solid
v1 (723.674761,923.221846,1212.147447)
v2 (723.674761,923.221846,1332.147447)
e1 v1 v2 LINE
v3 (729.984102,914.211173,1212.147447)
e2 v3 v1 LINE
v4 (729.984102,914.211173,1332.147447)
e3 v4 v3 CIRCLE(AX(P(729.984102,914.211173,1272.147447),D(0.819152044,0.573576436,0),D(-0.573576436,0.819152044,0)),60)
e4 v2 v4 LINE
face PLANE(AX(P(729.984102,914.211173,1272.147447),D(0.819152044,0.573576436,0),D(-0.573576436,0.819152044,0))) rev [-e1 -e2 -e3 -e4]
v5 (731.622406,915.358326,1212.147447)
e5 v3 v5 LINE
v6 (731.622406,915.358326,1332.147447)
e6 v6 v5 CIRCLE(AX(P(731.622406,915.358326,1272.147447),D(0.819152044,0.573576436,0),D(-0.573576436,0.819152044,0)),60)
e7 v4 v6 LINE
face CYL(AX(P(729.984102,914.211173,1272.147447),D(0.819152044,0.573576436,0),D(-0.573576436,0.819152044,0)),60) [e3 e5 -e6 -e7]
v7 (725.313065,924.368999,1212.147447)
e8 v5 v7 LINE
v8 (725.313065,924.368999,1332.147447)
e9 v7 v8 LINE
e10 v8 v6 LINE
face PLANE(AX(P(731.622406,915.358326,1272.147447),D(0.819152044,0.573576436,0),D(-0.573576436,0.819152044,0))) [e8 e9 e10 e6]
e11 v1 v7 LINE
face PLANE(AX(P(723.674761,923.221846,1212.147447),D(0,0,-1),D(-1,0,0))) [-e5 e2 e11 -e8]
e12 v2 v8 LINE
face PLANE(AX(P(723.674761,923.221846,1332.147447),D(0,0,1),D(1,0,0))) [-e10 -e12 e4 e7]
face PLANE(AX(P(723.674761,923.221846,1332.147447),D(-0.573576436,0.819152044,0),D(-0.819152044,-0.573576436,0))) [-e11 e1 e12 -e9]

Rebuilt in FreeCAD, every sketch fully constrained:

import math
import FreeCAD as App
import Part
import Sketcher

V = App.Vector

doc = App.newDocument("Part")
body = doc.addObject("PartDesign::Body", "Body")

# Sketch on an angled plane
sketch1 = body.newObject("Sketcher::SketchObject", "Sketch")
sketch1.Placement = App.Placement(V(921.003735, 644.893758, 0), App.Rotation(V(0, 0, -1), V(-0.573576436, 0.819152044, 0), V(0.819152044, 0.573576436, 0), "ZXY"))
sketch1.addGeometry(Part.LineSegment(V(-1332.147447, 341.176272, 0), V(-1332.147447, 330.176272, 0)), False)
sketch1.addGeometry(Part.ArcOfCircle(Part.Circle(V(-1272.147447, 330.176272, 0), V(0, 0, 1), 60), math.radians(180), math.radians(360)), False)
sketch1.addGeometry(Part.LineSegment(V(-1212.147447, 330.176272, 0), V(-1212.147447, 341.176272, 0)), False)
sketch1.addGeometry(Part.LineSegment(V(-1212.147447, 341.176272, 0), V(-1332.147447, 341.176272, 0)), False)
sketch1.addConstraint(Sketcher.Constraint("Tangent", 0, 2, 1, 1))
sketch1.addConstraint(Sketcher.Constraint("Tangent", 1, 2, 2, 1))
sketch1.addConstraint(Sketcher.Constraint("Coincident", 2, 2, 3, 1))
sketch1.addConstraint(Sketcher.Constraint("Coincident", 3, 2, 0, 1))
sketch1.addConstraint(Sketcher.Constraint("Vertical", 0))
sketch1.addConstraint(Sketcher.Constraint("Vertical", 2))
sketch1.addConstraint(Sketcher.Constraint("Horizontal", 3))
sketch1.addConstraint(Sketcher.Constraint("Radius", 1, 60.0))
sketch1.addConstraint(Sketcher.Constraint("DistanceY", 0, 2, 0, 1, 11.0))
sketch1.addConstraint(Sketcher.Constraint("DistanceY", -1, 1, 1, 3, 330.176272))
sketch1.addConstraint(Sketcher.Constraint("DistanceX", 1, 3, -1, 1, 1272.147447))
pad1 = body.newObject("PartDesign::Pad", "Pad")
pad1.Profile = sketch1
pad1.Length = 2
pad1.Reversed = True

doc.recompute()
